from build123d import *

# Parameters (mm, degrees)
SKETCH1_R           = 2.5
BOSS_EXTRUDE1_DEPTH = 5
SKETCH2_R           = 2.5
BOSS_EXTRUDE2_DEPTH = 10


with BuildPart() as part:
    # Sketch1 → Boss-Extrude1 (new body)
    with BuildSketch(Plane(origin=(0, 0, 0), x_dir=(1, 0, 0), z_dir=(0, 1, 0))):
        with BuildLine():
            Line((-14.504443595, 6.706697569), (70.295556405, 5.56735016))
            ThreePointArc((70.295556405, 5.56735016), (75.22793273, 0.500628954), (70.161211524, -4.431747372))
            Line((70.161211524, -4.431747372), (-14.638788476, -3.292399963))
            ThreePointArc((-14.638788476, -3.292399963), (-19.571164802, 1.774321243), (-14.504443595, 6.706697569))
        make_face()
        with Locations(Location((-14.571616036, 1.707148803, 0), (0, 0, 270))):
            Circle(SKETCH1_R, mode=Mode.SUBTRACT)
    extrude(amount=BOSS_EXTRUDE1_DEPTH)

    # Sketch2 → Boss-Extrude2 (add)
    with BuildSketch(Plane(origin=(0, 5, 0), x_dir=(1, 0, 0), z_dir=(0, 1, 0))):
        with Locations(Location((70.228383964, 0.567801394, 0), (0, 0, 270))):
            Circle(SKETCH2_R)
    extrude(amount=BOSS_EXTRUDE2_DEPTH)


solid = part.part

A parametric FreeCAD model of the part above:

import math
import FreeCAD as App
import Part
import Sketcher

V = App.Vector
Q = App.Units.Quantity

doc = App.newDocument("Part")
params = doc.addObject("Spreadsheet::Sheet", "Params")
for row, (alias, value) in enumerate([
    ("sketch1_diameter", "5 mm"),
    ("sketch1_radius", "5 mm"),
    ("pad1_length", "5 mm"),
    ("sketch2_diameter", "5 mm"),
    ("pad2_length", "10 mm"),
], start=1):
    params.set(f"A{row}", alias)
    params.set(f"B{row}", "=" + value)
    params.setAlias(f"B{row}", alias)

body = doc.addObject("PartDesign::Body", "Body")

sketch1 = doc.addObject("Sketcher::SketchObject", "Sketch")
body.addObject(sketch1)
sketch1.AttachmentSupport = (doc.XZ_Plane, [""])
sketch1.MapMode = "FlatFace"
sketch1.addGeometry(Part.LineSegment(V(70.3, -5.6, 0), V(-14.5, -6.7, 0)), False)
sketch1.addGeometry(Part.ArcOfCircle(Part.Circle(V(-14.6, -1.7, 0), V(0, 0, 1), 5), math.radians(91), math.radians(271)), False)
sketch1.addGeometry(Part.LineSegment(V(-14.6, 3.3, 0), V(70.2, 4.4, 0)), False)
sketch1.addGeometry(Part.ArcOfCircle(Part.Circle(V(70.2, -0.6, 0), V(0, 0, 1), 5), math.radians(-89), math.radians(91)), False)
sketch1.addGeometry(Part.Circle(V(-14.6, -1.7, 0), V(0, 0, 1), 2.5), False)
sketch1.addConstraint(Sketcher.Constraint("Tangent", 0, 2, 1, 2))
sketch1.addConstraint(Sketcher.Constraint("Tangent", 1, 1, 2, 1))
sketch1.addConstraint(Sketcher.Constraint("Tangent", 2, 2, 3, 2))
sketch1.addConstraint(Sketcher.Constraint("Tangent", 3, 1, 0, 1))
sketch1.addConstraint(Sketcher.Constraint("Coincident", 4, 3, 1, 3))
sketch1.addConstraint(Sketcher.Constraint("Equal", 1, 3))
sketch1.addConstraint(Sketcher.Constraint("Diameter", 4, Q("5 mm")))
sketch1.addConstraint(Sketcher.Constraint("Radius", 1, Q("5 mm")))
sketch1.addConstraint(Sketcher.Constraint("DistanceX", 1, 3, 3, 3, Q("84.8 mm")))
sketch1.addConstraint(Sketcher.Constraint("DistanceY", 3, 3, -1, 1, Q("0.567801 mm")))
sketch1.addConstraint(Sketcher.Constraint("DistanceY", -1, 1, 1, 1, Q("3.2924 mm")))
sketch1.addConstraint(Sketcher.Constraint("DistanceX", 1, 1, -1, 1, Q("14.638788 mm")))
sketch1.setExpression("Constraints[6]", "Params.sketch1_diameter")
sketch1.setExpression("Constraints[7]", "Params.sketch1_radius")
pad1 = doc.addObject("PartDesign::Pad", "Pad")
body.addObject(pad1)
pad1.Profile = sketch1
pad1.setExpression("Length", "Params.pad1_length")
pad1.Reversed = True

sketch2 = doc.addObject("Sketcher::SketchObject", "Sketch001")
body.addObject(sketch2)
sketch2.AttachmentSupport = (doc.XZ_Plane, [""])
sketch2.MapMode = "FlatFace"
sketch2.AttachmentOffset = App.Placement(V(0, 0, -5), App.Rotation())
sketch2.addGeometry(Part.Circle(V(70.2, -0.6, 0), V(0, 0, 1), 2.5), False)
sketch2.addConstraint(Sketcher.Constraint("Diameter", 0, Q("5 mm")))
sketch2.addConstraint(Sketcher.Constraint("DistanceY", 0, 3, -1, 1, Q("0.567801 mm")))
sketch2.addConstraint(Sketcher.Constraint("DistanceX", -1, 1, 0, 3, Q("70.228384 mm")))
sketch2.setExpression("Constraints[0]", "Params.sketch2_diameter")
pad2 = doc.addObject("PartDesign::Pad", "Pad001")
body.addObject(pad2)
pad2.Profile = sketch2
pad2.setExpression("Length", "Params.pad2_length")
pad2.Reversed = True

doc.recompute()
